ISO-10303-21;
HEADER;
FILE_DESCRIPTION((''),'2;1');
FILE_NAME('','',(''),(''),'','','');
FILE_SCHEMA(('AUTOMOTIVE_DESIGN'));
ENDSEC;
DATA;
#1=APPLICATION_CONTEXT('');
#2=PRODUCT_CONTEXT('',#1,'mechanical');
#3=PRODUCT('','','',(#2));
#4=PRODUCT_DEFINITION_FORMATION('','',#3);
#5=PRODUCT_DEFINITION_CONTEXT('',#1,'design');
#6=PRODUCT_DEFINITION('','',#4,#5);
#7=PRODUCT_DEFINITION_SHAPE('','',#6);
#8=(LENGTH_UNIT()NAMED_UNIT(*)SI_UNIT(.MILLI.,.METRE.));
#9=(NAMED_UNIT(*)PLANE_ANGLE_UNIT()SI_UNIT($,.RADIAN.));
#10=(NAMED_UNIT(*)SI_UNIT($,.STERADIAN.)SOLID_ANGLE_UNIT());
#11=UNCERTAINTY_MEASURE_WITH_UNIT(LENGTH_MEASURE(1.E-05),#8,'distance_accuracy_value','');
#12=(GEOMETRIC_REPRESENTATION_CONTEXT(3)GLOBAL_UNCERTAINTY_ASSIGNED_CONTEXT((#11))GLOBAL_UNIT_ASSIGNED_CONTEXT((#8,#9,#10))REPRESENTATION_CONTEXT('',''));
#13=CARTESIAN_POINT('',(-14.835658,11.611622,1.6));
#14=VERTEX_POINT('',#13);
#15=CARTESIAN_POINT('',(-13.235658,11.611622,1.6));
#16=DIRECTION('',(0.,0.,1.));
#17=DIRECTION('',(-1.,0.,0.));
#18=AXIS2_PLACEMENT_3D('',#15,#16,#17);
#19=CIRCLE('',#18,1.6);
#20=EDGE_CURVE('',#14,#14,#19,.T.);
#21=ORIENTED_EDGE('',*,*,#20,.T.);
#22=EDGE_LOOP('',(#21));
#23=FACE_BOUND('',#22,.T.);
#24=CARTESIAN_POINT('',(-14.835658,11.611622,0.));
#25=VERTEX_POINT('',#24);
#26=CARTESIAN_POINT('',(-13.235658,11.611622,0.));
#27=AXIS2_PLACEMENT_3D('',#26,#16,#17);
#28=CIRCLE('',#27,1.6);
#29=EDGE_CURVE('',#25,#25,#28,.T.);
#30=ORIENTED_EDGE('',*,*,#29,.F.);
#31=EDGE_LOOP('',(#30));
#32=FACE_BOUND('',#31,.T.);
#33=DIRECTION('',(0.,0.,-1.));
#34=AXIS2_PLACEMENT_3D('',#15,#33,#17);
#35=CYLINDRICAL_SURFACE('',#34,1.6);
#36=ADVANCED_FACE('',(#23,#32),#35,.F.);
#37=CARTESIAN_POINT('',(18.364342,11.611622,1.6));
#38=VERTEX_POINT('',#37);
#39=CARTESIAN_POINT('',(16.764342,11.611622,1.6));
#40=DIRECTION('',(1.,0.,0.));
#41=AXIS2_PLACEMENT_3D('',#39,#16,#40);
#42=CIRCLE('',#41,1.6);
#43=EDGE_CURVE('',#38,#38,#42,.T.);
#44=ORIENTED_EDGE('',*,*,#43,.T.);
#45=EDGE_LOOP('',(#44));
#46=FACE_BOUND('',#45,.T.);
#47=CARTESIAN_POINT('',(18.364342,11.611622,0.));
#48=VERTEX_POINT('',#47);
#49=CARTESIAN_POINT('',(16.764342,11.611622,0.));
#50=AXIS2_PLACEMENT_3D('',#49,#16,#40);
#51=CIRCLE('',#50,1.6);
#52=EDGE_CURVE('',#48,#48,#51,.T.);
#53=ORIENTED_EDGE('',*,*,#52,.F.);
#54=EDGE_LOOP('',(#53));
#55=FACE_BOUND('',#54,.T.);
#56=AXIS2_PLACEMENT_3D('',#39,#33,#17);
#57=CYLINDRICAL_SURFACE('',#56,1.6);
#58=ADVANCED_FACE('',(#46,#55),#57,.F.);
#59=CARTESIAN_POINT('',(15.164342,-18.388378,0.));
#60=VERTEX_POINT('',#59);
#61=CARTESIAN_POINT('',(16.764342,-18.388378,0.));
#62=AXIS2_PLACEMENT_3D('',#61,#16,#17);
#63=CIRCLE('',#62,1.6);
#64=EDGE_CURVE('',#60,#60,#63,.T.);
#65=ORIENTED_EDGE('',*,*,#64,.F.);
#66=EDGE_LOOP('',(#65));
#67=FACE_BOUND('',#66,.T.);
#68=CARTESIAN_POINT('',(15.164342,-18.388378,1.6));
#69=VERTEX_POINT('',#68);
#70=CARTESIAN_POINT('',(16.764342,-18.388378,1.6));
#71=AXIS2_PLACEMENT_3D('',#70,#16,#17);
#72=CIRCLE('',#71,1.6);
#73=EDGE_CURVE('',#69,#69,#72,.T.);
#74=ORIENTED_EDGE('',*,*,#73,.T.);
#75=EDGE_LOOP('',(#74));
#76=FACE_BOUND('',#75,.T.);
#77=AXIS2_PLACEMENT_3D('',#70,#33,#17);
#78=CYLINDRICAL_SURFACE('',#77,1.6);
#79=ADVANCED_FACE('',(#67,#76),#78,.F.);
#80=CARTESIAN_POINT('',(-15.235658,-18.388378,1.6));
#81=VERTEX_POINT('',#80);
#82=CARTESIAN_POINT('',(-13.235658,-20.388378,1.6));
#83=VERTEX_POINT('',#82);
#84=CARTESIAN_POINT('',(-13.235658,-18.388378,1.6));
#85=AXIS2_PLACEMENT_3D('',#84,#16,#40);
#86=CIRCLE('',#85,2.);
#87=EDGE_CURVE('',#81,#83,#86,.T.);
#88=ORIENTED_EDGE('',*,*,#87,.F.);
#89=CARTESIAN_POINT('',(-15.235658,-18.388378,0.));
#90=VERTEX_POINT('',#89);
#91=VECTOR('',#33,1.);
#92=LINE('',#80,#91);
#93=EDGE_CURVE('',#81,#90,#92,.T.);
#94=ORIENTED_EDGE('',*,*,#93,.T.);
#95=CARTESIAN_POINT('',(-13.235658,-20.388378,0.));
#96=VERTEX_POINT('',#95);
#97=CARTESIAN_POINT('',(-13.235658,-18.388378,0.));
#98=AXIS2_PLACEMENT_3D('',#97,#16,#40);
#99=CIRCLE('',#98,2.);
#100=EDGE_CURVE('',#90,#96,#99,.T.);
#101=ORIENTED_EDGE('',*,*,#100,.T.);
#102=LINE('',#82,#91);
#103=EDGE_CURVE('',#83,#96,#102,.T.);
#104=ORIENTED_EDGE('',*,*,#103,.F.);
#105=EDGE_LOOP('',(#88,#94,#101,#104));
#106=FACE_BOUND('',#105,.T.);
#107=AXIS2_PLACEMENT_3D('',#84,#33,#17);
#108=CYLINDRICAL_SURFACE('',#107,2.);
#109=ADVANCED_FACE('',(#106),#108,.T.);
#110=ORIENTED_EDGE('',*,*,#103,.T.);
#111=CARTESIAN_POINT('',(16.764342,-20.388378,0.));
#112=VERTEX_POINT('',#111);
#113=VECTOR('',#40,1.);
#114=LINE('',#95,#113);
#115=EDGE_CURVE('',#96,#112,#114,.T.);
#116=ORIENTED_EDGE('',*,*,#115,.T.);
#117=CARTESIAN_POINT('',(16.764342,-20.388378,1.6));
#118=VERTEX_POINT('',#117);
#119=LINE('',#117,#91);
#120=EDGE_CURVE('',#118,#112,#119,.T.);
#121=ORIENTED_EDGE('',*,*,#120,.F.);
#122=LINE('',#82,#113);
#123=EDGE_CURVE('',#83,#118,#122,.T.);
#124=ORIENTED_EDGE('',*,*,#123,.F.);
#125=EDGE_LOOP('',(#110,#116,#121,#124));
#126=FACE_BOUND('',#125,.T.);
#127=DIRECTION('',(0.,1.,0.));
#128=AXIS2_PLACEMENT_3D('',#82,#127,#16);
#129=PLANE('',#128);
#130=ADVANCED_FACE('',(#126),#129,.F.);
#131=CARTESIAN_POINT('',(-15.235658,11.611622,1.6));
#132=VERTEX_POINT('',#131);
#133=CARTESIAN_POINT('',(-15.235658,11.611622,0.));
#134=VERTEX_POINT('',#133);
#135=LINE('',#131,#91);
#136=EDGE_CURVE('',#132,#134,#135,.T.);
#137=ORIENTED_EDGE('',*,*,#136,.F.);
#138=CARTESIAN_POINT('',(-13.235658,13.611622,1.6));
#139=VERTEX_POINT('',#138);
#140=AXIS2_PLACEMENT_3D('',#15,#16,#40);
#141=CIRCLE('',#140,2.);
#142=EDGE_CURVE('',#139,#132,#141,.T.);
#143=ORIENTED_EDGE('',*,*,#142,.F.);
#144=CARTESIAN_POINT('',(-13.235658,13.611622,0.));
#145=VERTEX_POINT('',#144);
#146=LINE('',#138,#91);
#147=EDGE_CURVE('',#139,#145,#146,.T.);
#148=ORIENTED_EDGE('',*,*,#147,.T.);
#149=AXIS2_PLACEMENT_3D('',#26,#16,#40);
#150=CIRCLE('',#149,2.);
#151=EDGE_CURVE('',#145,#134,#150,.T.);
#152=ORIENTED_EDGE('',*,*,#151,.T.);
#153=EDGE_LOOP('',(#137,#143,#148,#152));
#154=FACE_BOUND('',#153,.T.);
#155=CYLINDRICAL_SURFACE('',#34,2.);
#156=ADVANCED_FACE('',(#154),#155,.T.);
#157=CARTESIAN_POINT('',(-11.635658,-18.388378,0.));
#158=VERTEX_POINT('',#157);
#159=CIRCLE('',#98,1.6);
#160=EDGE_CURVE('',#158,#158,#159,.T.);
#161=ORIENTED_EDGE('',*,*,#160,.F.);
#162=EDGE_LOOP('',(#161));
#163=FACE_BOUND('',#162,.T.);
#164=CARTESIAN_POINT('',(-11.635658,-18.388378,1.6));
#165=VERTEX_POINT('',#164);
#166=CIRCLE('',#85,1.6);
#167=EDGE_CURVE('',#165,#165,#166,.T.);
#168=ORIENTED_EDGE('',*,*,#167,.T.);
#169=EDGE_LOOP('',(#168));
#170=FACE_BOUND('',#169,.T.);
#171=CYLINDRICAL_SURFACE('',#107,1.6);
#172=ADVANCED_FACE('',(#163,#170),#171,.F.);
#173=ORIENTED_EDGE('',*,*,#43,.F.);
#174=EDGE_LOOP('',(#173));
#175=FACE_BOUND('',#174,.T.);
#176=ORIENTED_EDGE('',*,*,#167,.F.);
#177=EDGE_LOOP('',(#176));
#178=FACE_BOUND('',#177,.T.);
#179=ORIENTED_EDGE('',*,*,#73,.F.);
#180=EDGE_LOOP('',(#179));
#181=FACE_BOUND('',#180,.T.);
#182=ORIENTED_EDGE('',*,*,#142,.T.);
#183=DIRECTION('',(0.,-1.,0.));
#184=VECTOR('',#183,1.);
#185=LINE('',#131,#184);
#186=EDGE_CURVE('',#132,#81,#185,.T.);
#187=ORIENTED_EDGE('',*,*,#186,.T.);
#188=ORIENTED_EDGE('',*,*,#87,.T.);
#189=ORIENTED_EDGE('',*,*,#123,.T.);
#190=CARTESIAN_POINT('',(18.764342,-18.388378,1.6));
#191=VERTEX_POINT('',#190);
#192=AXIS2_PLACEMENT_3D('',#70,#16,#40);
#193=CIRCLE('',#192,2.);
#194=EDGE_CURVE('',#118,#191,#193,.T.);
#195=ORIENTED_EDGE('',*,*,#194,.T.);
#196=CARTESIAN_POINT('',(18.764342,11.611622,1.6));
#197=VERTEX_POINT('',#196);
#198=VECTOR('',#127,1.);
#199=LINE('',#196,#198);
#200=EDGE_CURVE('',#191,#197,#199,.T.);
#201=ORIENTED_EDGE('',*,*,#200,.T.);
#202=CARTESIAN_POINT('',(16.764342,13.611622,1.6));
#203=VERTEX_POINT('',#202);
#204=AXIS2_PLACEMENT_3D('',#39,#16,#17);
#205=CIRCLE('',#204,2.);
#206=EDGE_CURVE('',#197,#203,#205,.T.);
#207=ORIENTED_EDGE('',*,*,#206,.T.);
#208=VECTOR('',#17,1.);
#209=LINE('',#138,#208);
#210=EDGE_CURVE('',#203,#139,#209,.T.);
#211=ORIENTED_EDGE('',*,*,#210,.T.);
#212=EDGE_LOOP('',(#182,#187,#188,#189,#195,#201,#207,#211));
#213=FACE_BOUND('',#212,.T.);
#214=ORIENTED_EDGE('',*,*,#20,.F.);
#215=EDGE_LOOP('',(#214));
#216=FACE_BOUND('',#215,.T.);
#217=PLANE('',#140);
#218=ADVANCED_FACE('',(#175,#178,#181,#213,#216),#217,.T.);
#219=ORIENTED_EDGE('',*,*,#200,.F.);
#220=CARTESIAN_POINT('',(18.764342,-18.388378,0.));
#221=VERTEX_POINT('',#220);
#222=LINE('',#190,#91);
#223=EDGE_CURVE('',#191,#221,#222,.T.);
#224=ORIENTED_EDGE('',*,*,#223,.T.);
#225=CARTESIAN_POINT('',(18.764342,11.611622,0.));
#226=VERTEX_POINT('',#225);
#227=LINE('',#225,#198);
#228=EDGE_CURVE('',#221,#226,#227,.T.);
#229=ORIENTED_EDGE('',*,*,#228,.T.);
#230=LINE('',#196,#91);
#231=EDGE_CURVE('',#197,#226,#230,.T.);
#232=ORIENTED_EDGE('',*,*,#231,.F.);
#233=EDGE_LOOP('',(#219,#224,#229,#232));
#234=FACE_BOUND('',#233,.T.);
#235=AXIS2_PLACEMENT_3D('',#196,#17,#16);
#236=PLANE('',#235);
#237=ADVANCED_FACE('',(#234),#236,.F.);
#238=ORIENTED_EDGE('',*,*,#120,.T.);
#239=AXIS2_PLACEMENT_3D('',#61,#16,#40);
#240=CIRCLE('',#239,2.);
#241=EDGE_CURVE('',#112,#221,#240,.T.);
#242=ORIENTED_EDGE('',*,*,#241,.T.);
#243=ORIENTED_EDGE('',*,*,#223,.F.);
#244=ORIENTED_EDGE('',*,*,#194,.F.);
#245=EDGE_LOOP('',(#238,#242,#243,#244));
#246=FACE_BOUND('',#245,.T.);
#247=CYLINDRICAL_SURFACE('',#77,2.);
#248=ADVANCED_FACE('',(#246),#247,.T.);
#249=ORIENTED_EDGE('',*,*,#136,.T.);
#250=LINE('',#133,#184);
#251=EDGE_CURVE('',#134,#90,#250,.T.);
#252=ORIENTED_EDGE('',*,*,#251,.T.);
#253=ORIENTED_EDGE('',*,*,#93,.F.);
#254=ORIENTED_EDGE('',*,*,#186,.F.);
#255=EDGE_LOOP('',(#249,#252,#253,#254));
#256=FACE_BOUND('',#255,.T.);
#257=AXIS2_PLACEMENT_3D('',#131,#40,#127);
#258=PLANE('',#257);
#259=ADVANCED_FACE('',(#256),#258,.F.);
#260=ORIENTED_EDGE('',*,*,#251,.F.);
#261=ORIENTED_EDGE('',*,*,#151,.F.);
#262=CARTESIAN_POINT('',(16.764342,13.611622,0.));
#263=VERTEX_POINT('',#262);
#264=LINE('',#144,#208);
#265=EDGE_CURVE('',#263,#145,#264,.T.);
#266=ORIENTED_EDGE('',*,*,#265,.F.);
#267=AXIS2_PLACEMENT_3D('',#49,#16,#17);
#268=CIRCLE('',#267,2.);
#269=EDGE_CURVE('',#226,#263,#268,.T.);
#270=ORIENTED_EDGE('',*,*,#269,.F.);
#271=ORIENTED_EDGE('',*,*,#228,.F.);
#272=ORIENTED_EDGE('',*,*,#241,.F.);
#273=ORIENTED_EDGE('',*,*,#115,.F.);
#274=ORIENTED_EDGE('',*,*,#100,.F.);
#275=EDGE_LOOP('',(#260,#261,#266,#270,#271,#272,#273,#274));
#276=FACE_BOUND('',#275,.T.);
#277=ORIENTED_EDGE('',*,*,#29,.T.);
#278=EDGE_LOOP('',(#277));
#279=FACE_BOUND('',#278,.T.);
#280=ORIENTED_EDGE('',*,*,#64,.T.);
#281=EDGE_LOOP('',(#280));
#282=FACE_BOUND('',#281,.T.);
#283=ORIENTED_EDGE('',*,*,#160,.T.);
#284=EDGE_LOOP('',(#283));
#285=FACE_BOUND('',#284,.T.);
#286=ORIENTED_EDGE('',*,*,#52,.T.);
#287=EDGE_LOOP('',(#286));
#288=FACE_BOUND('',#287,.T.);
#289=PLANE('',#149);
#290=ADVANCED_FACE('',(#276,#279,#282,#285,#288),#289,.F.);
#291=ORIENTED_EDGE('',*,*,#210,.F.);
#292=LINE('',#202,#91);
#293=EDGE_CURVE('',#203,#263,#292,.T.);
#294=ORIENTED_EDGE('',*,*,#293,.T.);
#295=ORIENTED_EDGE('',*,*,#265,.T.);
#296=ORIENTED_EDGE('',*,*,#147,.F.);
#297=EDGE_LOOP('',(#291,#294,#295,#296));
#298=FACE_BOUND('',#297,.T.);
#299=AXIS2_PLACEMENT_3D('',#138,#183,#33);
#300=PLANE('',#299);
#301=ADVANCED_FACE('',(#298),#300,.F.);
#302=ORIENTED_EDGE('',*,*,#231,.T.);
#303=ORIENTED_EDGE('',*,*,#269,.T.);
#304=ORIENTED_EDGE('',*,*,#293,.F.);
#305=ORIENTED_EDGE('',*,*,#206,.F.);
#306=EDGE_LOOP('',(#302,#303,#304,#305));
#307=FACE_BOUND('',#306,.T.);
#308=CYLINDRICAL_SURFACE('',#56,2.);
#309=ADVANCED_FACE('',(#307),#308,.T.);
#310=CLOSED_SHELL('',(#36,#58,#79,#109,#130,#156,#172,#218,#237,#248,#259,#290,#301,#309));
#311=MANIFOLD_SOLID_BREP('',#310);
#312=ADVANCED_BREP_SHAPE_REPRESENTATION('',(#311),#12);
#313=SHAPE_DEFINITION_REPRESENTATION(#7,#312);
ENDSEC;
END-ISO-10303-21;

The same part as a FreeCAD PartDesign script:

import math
import FreeCAD as App
import Part
import Sketcher
Q = App.Units.Quantity

doc = App.newDocument("Part")
body = doc.addObject("PartDesign::Body", "Body")

# Sketch on XY plane
sketch1 = body.newObject("Sketcher::SketchObject", "Sketch")
sketch1.AttachmentSupport = (doc.getObject("XY_Plane"), [""])
sketch1.MapMode = "FlatFace"
sketch1.addGeometry(Part.LineSegment(App.Vector(16.8, 13.6, 0), App.Vector(-13.2, 13.6, 0)), False)
sketch1.addGeometry(Part.ArcOfCircle(Part.Circle(App.Vector(-13.2, 11.6, 0), App.Vector(0, 0, 1), 2), math.radians(90), math.radians(180)), False)
sketch1.addGeometry(Part.LineSegment(App.Vector(-15.2, 11.6, 0), App.Vector(-15.2, -18.4, 0)), False)
sketch1.addGeometry(Part.ArcOfCircle(Part.Circle(App.Vector(-13.2, -18.4, 0), App.Vector(0, 0, 1), 2), math.radians(180), math.radians(270)), False)
sketch1.addGeometry(Part.LineSegment(App.Vector(-13.2, -20.4, 0), App.Vector(16.8, -20.4, 0)), False)
sketch1.addGeometry(Part.ArcOfCircle(Part.Circle(App.Vector(16.8, -18.4, 0), App.Vector(0, 0, 1), 2), math.radians(-90), math.radians(0)), False)
sketch1.addGeometry(Part.LineSegment(App.Vector(18.8, -18.4, 0), App.Vector(18.8, 11.6, 0)), False)
sketch1.addGeometry(Part.ArcOfCircle(Part.Circle(App.Vector(16.8, 11.6, 0), App.Vector(0, 0, 1), 2), math.radians(0), math.radians(90)), False)
sketch1.addGeometry(Part.Circle(App.Vector(16.8, -18.4, 0), App.Vector(0, 0, 1), 1.6), False)
sketch1.addGeometry(Part.Circle(App.Vector(-13.2, -18.4, 0), App.Vector(0, 0, 1), 1.6), False)
sketch1.addGeometry(Part.Circle(App.Vector(16.8, 11.6, 0), App.Vector(0, 0, 1), 1.6), False)
sketch1.addGeometry(Part.Circle(App.Vector(-13.2, 11.6, 0), App.Vector(0, 0, 1), 1.6), False)
sketch1.addConstraint(Sketcher.Constraint("Tangent", 0, 2, 1, 1))
sketch1.addConstraint(Sketcher.Constraint("Tangent", 1, 2, 2, 1))
sketch1.addConstraint(Sketcher.Constraint("Tangent", 2, 2, 3, 1))
sketch1.addConstraint(Sketcher.Constraint("Tangent", 3, 2, 4, 1))
sketch1.addConstraint(Sketcher.Constraint("Tangent", 4, 2, 5, 1))
sketch1.addConstraint(Sketcher.Constraint("Tangent", 5, 2, 6, 1))
sketch1.addConstraint(Sketcher.Constraint("Tangent", 6, 2, 7, 1))
sketch1.addConstraint(Sketcher.Constraint("Tangent", 7, 2, 0, 1))
sketch1.addConstraint(Sketcher.Constraint("Horizontal", 0))
sketch1.addConstraint(Sketcher.Constraint("Vertical", 2))
sketch1.addConstraint(Sketcher.Constraint("Horizontal", 4))
sketch1.addConstraint(Sketcher.Constraint("Vertical", 6))
sketch1.addConstraint(Sketcher.Constraint("Coincident", 8, 3, 5, 3))
sketch1.addConstraint(Sketcher.Constraint("Coincident", 9, 3, 3, 3))
sketch1.addConstraint(Sketcher.Constraint("Coincident", 10, 3, 7, 3))
sketch1.addConstraint(Sketcher.Constraint("Coincident", 11, 3, 1, 3))
sketch1.addConstraint(Sketcher.Constraint("Equal", 1, 3))
sketch1.addConstraint(Sketcher.Constraint("Equal", 3, 5))
sketch1.addConstraint(Sketcher.Constraint("Equal", 5, 7))
sketch1.addConstraint(Sketcher.Constraint("Equal", 8, 9))
sketch1.addConstraint(Sketcher.Constraint("Equal", 9, 10))
sketch1.addConstraint(Sketcher.Constraint("Equal", 10, 11))
sketch1.addConstraint(Sketcher.Constraint("Equal", 4, 2))
sketch1.addConstraint(Sketcher.Constraint("Radius", 1, Q("2 mm")))
sketch1.addConstraint(Sketcher.Constraint("Diameter", 8, Q("3.2 mm")))
sketch1.addConstraint(Sketcher.Constraint("DistanceX", 0, 2, 0, 1, Q("30 mm")))
sketch1.addConstraint(Sketcher.Constraint("DistanceX", 1, 3, -1, 1, Q("13.235658 mm")))
sketch1.addConstraint(Sketcher.Constraint("DistanceY", -1, 1, 1, 3, Q("11.611622 mm")))
pad1 = body.newObject("PartDesign::Pad", "Pad")
pad1.Profile = sketch1
pad1.Length = 1.6

doc.recompute()
